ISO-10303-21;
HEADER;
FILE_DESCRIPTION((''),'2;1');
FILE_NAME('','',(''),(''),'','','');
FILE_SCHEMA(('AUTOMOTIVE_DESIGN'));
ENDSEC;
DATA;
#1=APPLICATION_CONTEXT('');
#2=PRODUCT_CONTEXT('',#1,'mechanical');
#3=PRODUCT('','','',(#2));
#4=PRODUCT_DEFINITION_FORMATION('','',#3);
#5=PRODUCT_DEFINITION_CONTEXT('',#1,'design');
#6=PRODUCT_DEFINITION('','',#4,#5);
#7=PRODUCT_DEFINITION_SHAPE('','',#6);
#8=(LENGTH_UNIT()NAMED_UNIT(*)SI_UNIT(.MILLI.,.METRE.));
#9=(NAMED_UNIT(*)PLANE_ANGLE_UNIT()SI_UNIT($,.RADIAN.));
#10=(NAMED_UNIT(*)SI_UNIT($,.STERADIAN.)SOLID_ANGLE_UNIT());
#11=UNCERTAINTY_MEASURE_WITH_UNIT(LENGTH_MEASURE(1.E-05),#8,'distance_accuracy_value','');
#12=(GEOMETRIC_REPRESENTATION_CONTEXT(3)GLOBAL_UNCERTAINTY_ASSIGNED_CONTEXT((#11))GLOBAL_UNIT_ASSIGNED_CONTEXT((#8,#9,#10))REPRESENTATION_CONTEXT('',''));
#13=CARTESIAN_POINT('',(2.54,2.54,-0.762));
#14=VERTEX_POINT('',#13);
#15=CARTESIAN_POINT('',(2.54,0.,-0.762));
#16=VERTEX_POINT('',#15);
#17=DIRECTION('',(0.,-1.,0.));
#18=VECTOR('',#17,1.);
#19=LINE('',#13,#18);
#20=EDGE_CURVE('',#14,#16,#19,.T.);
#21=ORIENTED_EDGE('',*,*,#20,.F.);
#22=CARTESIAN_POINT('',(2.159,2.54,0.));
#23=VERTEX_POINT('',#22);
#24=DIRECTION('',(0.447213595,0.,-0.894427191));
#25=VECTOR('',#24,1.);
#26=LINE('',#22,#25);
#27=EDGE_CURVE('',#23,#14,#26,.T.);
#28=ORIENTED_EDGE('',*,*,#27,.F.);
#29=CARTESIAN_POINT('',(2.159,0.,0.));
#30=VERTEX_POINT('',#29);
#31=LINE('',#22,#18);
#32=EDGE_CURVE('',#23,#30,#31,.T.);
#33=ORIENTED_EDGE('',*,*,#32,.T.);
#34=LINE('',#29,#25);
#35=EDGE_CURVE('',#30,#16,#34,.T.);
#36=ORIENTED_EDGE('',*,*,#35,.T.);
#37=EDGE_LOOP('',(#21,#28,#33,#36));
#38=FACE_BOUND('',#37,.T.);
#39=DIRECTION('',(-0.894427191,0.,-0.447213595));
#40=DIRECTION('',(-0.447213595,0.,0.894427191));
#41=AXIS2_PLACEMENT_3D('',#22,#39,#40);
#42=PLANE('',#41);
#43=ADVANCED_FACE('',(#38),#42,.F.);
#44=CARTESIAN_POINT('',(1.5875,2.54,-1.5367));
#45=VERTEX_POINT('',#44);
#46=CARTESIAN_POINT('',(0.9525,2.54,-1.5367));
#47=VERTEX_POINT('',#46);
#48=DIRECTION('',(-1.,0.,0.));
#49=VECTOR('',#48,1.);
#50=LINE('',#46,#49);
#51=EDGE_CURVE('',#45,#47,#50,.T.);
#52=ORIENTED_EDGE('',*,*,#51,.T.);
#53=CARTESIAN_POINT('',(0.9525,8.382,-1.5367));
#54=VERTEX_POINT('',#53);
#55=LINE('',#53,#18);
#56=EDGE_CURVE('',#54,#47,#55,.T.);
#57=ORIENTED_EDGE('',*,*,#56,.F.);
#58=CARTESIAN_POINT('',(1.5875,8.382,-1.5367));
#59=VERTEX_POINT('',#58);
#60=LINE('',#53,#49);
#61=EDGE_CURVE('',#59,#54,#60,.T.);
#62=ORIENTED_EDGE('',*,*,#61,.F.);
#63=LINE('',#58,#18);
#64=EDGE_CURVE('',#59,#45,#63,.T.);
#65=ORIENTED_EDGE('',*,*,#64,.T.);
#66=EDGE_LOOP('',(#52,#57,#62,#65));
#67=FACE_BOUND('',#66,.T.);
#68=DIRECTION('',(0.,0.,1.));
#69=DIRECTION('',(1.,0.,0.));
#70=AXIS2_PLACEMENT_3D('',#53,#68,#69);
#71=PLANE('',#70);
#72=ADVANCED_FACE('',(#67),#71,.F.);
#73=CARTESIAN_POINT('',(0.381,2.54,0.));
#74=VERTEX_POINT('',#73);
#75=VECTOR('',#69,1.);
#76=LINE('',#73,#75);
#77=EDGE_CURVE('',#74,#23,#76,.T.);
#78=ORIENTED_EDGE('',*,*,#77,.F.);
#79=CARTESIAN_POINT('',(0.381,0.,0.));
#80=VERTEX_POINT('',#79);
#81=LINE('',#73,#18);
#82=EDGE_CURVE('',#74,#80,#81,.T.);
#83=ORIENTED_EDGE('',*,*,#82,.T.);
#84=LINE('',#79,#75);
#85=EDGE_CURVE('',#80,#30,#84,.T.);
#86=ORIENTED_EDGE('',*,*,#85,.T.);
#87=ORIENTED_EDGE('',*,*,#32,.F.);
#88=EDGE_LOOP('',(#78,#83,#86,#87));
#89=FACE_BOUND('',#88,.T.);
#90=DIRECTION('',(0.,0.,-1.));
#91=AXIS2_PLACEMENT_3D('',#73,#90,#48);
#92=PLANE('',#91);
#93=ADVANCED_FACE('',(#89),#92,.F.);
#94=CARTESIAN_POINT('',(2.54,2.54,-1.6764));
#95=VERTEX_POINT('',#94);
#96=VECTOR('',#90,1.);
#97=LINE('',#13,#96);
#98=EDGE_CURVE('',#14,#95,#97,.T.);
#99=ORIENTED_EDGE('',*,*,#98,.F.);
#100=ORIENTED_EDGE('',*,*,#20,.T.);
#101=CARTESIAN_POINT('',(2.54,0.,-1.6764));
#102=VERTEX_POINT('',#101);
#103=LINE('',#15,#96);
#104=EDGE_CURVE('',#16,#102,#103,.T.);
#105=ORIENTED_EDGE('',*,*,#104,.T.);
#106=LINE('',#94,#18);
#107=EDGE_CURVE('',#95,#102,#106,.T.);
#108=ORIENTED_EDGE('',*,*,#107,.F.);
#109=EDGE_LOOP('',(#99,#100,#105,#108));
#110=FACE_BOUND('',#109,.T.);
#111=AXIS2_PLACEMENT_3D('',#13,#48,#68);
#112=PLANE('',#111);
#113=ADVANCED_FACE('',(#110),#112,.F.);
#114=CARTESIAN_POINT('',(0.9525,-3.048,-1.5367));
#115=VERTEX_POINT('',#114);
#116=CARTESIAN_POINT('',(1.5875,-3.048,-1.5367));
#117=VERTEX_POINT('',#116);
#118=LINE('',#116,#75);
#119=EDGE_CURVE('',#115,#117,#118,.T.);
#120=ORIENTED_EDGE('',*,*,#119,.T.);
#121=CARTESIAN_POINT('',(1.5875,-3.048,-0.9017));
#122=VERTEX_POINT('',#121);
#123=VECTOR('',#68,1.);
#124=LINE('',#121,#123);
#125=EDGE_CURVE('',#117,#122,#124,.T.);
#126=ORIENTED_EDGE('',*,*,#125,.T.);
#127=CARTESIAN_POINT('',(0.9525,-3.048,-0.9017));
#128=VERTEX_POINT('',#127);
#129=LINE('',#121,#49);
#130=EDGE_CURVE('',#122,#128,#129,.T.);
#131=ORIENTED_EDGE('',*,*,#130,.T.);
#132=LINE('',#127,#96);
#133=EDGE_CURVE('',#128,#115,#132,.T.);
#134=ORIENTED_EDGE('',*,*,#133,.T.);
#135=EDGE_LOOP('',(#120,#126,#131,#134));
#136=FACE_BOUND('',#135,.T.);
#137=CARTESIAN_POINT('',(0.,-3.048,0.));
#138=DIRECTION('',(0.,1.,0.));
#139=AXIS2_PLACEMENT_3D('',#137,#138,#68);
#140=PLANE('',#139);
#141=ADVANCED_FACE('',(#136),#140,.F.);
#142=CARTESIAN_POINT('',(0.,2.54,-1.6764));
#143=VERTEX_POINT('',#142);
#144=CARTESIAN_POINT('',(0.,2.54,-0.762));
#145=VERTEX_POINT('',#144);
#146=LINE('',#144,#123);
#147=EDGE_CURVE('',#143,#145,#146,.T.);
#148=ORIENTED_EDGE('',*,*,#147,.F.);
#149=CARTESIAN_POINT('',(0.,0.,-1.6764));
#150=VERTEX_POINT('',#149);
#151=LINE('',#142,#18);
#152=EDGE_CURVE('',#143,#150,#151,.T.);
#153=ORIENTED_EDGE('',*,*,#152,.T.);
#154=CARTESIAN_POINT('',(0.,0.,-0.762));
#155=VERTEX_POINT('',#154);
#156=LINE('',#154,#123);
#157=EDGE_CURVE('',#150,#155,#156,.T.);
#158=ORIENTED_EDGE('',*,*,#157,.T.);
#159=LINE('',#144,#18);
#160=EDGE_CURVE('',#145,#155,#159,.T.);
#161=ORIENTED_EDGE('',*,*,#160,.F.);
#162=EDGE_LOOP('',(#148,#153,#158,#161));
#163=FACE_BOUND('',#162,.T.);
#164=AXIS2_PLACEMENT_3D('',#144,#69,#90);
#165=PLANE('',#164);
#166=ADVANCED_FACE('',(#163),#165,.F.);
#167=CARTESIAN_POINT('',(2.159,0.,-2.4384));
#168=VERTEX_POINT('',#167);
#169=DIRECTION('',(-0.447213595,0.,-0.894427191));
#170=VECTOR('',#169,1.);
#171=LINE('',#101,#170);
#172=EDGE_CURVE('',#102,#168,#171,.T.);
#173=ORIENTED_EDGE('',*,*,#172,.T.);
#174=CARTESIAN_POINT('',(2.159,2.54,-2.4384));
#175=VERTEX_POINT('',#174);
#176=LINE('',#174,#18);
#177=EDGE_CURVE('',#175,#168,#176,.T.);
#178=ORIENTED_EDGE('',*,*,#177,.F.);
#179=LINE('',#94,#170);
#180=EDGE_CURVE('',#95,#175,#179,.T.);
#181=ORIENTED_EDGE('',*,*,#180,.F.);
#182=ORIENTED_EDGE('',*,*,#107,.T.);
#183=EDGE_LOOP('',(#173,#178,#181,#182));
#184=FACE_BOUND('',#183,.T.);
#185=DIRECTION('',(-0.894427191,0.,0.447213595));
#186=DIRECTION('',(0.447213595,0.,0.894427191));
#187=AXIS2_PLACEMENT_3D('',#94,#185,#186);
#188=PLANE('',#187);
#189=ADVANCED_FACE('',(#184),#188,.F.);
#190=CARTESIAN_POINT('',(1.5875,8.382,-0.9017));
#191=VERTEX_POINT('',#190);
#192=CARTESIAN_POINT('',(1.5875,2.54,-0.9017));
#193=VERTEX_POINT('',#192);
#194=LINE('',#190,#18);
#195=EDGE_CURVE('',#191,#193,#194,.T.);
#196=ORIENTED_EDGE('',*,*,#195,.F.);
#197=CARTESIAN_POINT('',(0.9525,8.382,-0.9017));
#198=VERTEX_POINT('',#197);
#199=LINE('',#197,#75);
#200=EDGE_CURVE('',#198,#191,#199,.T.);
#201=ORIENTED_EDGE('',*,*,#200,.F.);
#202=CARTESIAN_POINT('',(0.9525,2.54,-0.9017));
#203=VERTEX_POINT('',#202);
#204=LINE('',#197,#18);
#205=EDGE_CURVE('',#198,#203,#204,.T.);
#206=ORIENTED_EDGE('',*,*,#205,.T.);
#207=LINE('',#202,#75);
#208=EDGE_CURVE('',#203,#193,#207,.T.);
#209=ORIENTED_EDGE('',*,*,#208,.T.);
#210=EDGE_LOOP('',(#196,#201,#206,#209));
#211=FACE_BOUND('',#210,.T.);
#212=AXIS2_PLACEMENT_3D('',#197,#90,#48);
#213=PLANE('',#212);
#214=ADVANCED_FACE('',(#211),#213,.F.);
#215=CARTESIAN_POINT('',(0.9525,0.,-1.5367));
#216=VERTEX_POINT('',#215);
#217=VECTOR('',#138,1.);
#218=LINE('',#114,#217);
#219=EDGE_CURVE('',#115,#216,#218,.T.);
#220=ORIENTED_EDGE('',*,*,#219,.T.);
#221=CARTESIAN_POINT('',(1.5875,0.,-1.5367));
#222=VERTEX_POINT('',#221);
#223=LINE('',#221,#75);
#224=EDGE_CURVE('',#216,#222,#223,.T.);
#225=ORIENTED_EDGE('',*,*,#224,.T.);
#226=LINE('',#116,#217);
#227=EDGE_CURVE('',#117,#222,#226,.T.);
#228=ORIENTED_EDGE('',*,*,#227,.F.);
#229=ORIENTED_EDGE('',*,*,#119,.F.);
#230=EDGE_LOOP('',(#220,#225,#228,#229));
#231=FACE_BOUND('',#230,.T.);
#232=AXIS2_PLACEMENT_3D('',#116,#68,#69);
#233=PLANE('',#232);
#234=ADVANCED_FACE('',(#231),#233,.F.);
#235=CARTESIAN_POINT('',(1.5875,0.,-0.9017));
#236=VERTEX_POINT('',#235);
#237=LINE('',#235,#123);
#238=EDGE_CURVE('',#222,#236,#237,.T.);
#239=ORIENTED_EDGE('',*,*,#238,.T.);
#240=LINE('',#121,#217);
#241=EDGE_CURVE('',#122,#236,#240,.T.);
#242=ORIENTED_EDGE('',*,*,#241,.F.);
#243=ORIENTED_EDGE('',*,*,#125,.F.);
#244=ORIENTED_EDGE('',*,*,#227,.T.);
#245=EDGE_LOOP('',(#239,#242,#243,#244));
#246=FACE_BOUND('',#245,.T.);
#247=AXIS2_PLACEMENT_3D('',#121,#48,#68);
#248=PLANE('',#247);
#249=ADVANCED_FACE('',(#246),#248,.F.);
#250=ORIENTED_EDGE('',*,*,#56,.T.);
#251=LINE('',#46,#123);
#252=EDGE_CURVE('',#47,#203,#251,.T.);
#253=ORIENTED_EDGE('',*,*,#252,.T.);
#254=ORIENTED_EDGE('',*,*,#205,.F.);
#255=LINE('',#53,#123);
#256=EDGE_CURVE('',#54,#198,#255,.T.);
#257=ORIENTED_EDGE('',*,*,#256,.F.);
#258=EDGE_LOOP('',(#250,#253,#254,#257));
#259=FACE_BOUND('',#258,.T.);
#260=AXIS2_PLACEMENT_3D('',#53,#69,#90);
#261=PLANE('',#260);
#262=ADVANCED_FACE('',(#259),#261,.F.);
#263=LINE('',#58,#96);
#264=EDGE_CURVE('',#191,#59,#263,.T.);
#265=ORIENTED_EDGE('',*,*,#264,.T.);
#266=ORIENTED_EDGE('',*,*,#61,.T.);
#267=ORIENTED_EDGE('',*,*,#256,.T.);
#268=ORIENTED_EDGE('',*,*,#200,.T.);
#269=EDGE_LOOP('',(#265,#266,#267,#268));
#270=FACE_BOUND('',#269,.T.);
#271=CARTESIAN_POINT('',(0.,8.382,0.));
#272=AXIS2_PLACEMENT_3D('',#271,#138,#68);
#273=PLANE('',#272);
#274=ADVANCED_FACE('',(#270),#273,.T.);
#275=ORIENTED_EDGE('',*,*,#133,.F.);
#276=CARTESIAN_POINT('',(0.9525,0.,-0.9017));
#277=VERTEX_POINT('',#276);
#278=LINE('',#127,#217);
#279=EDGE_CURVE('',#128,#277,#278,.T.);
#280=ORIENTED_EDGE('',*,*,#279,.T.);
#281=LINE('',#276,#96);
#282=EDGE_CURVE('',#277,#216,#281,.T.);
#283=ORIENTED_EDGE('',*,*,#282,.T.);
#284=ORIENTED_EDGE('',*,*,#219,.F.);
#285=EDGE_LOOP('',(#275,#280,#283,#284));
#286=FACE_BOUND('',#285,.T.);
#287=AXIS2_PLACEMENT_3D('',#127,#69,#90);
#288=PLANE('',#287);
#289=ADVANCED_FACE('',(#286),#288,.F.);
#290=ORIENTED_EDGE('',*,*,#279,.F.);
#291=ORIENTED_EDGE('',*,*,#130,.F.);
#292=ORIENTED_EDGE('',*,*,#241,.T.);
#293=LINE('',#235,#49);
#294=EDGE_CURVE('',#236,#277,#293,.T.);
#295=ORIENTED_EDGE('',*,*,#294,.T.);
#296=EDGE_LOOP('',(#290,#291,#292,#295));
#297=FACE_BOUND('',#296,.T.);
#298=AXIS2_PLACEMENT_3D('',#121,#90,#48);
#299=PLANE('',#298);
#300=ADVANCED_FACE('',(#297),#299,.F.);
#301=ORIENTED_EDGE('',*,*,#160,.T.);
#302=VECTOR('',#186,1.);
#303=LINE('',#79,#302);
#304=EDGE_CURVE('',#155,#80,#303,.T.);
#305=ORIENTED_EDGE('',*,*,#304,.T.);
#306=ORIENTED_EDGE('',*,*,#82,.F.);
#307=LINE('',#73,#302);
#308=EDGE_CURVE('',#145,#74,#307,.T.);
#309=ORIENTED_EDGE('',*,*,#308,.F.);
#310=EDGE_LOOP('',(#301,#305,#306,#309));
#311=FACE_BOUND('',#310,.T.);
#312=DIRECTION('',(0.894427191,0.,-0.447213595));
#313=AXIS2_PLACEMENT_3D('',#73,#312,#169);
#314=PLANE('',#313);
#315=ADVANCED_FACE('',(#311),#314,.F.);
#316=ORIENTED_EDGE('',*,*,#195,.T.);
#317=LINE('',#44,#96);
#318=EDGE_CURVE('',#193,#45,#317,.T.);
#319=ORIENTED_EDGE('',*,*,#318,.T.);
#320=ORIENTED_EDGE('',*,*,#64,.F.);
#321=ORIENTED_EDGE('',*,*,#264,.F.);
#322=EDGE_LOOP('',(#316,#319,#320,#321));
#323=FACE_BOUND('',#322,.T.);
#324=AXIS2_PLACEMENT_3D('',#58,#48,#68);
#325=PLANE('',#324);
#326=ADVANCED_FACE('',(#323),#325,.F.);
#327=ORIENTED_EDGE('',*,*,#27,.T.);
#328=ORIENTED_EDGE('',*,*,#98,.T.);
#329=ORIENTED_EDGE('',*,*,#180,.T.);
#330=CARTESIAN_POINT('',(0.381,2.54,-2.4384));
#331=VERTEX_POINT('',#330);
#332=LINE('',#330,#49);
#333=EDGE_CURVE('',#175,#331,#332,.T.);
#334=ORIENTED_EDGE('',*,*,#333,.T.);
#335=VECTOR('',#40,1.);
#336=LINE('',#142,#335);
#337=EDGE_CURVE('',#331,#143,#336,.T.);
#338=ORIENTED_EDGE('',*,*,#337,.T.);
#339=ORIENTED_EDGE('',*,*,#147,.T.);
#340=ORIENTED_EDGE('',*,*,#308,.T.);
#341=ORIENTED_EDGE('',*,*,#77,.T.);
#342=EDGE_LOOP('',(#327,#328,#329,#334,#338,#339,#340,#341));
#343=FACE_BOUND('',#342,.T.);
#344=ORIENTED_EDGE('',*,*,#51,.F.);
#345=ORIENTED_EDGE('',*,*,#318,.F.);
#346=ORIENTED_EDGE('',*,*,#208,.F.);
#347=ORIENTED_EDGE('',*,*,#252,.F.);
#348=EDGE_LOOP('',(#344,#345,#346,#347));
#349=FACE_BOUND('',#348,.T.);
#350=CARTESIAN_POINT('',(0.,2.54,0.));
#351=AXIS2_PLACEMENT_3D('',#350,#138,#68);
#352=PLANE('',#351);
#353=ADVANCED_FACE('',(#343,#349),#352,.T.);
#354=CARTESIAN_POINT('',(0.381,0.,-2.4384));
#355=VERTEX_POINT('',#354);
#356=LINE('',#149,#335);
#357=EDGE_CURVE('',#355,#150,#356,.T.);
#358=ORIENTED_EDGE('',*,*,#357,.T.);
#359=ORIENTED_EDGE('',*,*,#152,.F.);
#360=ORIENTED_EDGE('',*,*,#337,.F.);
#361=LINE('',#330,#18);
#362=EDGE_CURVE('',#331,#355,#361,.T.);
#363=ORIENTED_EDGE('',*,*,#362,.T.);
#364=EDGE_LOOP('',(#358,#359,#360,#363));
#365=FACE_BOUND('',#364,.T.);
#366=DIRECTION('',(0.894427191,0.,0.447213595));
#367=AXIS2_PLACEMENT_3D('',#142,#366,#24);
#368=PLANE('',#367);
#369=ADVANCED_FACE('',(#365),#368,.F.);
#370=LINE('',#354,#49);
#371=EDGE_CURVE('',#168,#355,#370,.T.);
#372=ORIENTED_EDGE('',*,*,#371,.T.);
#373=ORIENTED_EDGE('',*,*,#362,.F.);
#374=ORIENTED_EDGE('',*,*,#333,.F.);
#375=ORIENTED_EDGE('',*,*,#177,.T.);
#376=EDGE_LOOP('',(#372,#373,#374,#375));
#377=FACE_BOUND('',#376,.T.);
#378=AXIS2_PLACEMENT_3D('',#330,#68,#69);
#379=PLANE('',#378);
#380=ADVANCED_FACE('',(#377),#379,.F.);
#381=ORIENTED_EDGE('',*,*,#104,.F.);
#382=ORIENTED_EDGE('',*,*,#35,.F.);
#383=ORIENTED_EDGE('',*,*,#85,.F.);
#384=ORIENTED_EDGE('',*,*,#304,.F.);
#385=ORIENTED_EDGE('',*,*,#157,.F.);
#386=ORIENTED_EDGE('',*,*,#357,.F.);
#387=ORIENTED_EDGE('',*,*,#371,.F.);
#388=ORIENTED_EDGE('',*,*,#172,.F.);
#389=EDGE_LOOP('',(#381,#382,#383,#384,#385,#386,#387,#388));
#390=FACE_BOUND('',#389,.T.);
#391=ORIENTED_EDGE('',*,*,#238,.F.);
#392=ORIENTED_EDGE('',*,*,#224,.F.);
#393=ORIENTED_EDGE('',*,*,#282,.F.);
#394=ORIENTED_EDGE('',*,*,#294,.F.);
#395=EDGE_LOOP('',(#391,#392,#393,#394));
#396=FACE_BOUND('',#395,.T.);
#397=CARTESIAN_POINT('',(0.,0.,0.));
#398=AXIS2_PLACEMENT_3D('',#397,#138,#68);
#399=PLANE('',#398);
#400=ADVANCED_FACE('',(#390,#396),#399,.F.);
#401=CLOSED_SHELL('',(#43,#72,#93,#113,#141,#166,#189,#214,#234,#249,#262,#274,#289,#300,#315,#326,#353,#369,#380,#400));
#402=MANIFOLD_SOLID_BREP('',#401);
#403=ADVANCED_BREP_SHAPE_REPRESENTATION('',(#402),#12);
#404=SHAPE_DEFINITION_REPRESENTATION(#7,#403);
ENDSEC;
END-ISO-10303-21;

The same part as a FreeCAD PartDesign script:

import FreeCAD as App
import Part
import Sketcher
from FreeCAD import Vector
Q = App.Units.Quantity


def add_polygon(sketch, points):
    """Adds a closed chain of lines whose ends are joined by coincident constraints."""
    first, n = sketch.GeometryCount, len(points)
    for a, b in zip(points, points[1:] + points[:1]):
        sketch.addGeometry(Part.LineSegment(App.Vector(*a, 0), App.Vector(*b, 0)), False)
    for i in range(n):
        sketch.addConstraint(Sketcher.Constraint("Coincident", first + i, 2, first + (i + 1) % n, 1))

doc = App.newDocument("Part")
body = doc.addObject("PartDesign::Body", "Body")

# Sketch on XZ plane
sketch1 = body.newObject("Sketcher::SketchObject", "Sketch")
sketch1.AttachmentSupport = (doc.getObject("XZ_Plane"), [""])
sketch1.MapMode = "FlatFace"
add_polygon(sketch1, [(0, -0.762), (0.381, 0), (2.159, 0), (2.54, -0.762), (2.54, -1.6764), (2.159, -2.4384), (0.381, -2.4384), (0, -1.6764)])  # lines 0-7
sketch1.addConstraint(Sketcher.Constraint("Horizontal", 1))
sketch1.addConstraint(Sketcher.Constraint("Vertical", 3))
sketch1.addConstraint(Sketcher.Constraint("Horizontal", 5))
sketch1.addConstraint(Sketcher.Constraint("Vertical", 7))
sketch1.addConstraint(Sketcher.Constraint("PointOnObject", 0, 2, -1))
sketch1.addConstraint(Sketcher.Constraint("PointOnObject", 6, 2, -2))
sketch1.addConstraint(Sketcher.Constraint("Parallel", 0, 4))
sketch1.addConstraint(Sketcher.Constraint("Parallel", 2, 6))
sketch1.addConstraint(Sketcher.Constraint("Horizontal", 3, 2, 6, 2))
sketch1.addConstraint(Sketcher.Constraint("Horizontal", 2, 2, 7, 2))
sketch1.addConstraint(Sketcher.Constraint("Vertical", 1, 2, 4, 2))
sketch1.addConstraint(Sketcher.Constraint("Vertical", 0, 2, 5, 2))
sketch1.addConstraint(Sketcher.Constraint("DistanceX", 1, 1, 1, 2, Q("0.07 in")))
sketch1.addConstraint(Sketcher.Constraint("DistanceX", -1, 1, 2, 2, Q("0.1 in")))
sketch1.addConstraint(Sketcher.Constraint("DistanceY", 3, 2, 3, 1, Q("0.036 in")))
sketch1.addConstraint(Sketcher.Constraint("DistanceY", 2, 2, -1, 1, Q("0.03 in")))
pad1 = body.newObject("PartDesign::Pad", "Pad")
pad1.Profile = sketch1
pad1.Length = Q("0.1 in")
pad1.Reversed = True

# Sketch on XZ plane
sketch2 = body.newObject("Sketcher::SketchObject", "Sketch001")
sketch2.AttachmentSupport = (doc.getObject("XZ_Plane"), [""])
sketch2.MapMode = "FlatFace"
sketch2.AttachmentOffset = App.Placement(Vector(0, 0, -0.1 * 25.4), App.Rotation())
add_polygon(sketch2, [(0.9525, -1.5367), (0.9525, -0.9017), (1.5875, -0.9017), (1.5875, -1.5367)])  # lines 0-3
sketch2.addConstraint(Sketcher.Constraint("Vertical", 0))
sketch2.addConstraint(Sketcher.Constraint("Horizontal", 1))
sketch2.addConstraint(Sketcher.Constraint("Vertical", 2))
sketch2.addConstraint(Sketcher.Constraint("Horizontal", 3))
sketch2.addConstraint(Sketcher.Constraint("Equal", 3, 0))
sketch2.addConstraint(Sketcher.Constraint("DistanceX", 1, 1, 1, 2, Q("0.025 in")))
sketch2.addConstraint(Sketcher.Constraint("DistanceX", -1, 1, 1, 2, Q("0.0625 in")))
sketch2.addConstraint(Sketcher.Constraint("DistanceY", 0, 2, -1, 1, Q("0.0355 in")))
pad2 = body.newObject("PartDesign::Pad", "Pad001")
pad2.Profile = sketch2
pad2.Length = Q("0.23 in")
pad2.Reversed = True

# Sketch on XZ plane
sketch3 = body.newObject("Sketcher::SketchObject", "Sketch002")
sketch3.AttachmentSupport = (doc.getObject("XZ_Plane"), [""])
sketch3.MapMode = "FlatFace"
add_polygon(sketch3, [(0.9525, -0.9017), (0.9525, -1.5367), (1.5875, -1.5367), (1.5875, -0.9017)])  # lines 0-3
sketch3.addConstraint(Sketcher.Constraint("Vertical", 0))
sketch3.addConstraint(Sketcher.Constraint("Horizontal", 1))
sketch3.addConstraint(Sketcher.Constraint("Vertical", 2))
sketch3.addConstraint(Sketcher.Constraint("Horizontal", 3))
sketch3.addConstraint(Sketcher.Constraint("Equal", 3, 0))
sketch3.addConstraint(Sketcher.Constraint("DistanceX", 1, 1, 1, 2, Q("0.025 in")))
sketch3.addConstraint(Sketcher.Constraint("DistanceX", -1, 1, 1, 2, Q("0.0625 in")))
sketch3.addConstraint(Sketcher.Constraint("DistanceY", 0, 2, -1, 1, Q("0.0605 in")))
pad3 = body.newObject("PartDesign::Pad", "Pad002")
pad3.Profile = sketch3
pad3.Length = Q("0.12 in")

doc.recompute()
